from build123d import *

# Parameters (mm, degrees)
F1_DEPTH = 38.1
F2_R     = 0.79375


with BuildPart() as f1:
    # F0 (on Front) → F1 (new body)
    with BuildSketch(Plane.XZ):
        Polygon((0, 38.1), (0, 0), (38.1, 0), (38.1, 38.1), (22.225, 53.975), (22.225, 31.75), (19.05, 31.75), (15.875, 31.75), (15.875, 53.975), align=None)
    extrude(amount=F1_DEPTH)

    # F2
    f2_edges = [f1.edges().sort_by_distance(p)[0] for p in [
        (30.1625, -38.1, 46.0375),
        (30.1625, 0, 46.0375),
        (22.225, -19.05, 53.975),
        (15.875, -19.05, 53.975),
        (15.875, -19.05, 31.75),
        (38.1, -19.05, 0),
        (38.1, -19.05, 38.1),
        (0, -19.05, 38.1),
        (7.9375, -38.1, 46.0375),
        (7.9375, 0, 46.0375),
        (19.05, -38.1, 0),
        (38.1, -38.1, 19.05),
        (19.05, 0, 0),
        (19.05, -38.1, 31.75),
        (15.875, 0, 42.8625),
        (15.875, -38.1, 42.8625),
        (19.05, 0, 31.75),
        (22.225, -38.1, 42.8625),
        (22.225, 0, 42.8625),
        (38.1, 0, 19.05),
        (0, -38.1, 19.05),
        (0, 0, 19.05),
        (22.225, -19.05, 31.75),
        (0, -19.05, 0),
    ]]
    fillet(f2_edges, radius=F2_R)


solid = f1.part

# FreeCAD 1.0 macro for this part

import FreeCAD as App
import Part
import Sketcher
from FreeCAD import Vector
Q = App.Units.Quantity

doc = App.newDocument("Part")
body = doc.addObject("PartDesign::Body", "Body")

# Sketch on XZ plane
sketch1 = body.newObject("Sketcher::SketchObject", "Sketch")
sketch1.AttachmentSupport = (doc.getObject("XZ_Plane"), [""])
sketch1.MapMode = "FlatFace"
sketch1.addGeometry(Part.LineSegment(Vector(0, 38, 0), Vector(0, 0, 0)), False)
sketch1.addGeometry(Part.LineSegment(Vector(0, 0, 0), Vector(38, 0, 0)), False)
sketch1.addGeometry(Part.LineSegment(Vector(38, 0, 0), Vector(38, 38, 0)), False)
sketch1.addGeometry(Part.LineSegment(Vector(38, 38, 0), Vector(22, 54, 0)), False)
sketch1.addGeometry(Part.LineSegment(Vector(22, 54, 0), Vector(22, 32, 0)), False)
sketch1.addGeometry(Part.LineSegment(Vector(22, 32, 0), Vector(16, 32, 0)), False)
sketch1.addGeometry(Part.LineSegment(Vector(16, 32, 0), Vector(16, 54, 0)), False)
sketch1.addGeometry(Part.LineSegment(Vector(16, 54, 0), Vector(0, 38, 0)), False)
sketch1.addConstraint(Sketcher.Constraint("Coincident", 0, 2, 1, 1))
sketch1.addConstraint(Sketcher.Constraint("Coincident", 1, 2, 2, 1))
sketch1.addConstraint(Sketcher.Constraint("Coincident", 2, 2, 3, 1))
sketch1.addConstraint(Sketcher.Constraint("Coincident", 3, 2, 4, 1))
sketch1.addConstraint(Sketcher.Constraint("Coincident", 4, 2, 5, 1))
sketch1.addConstraint(Sketcher.Constraint("Coincident", 5, 2, 6, 1))
sketch1.addConstraint(Sketcher.Constraint("Coincident", 6, 2, 7, 1))
sketch1.addConstraint(Sketcher.Constraint("Coincident", 7, 2, 0, 1))
sketch1.addConstraint(Sketcher.Constraint("Vertical", 0))
sketch1.addConstraint(Sketcher.Constraint("Horizontal", 1))
sketch1.addConstraint(Sketcher.Constraint("Vertical", 2))
sketch1.addConstraint(Sketcher.Constraint("Vertical", 4))
sketch1.addConstraint(Sketcher.Constraint("Horizontal", 5))
sketch1.addConstraint(Sketcher.Constraint("Vertical", 6))
sketch1.addConstraint(Sketcher.Constraint("Coincident", 0, 2, -1, 1))
sketch1.addConstraint(Sketcher.Constraint("Perpendicular", 3, 7))
sketch1.addConstraint(Sketcher.Constraint("Horizontal", 3, 2, 6, 2))
sketch1.addConstraint(Sketcher.Constraint("Horizontal", 2, 2, 7, 2))
sketch1.addConstraint(Sketcher.Constraint("Equal", 1, 0))
sketch1.addConstraint(Sketcher.Constraint("Equal", 3, 7))
sketch1.addConstraint(Sketcher.Constraint("DistanceX", 1, 1, 1, 2, Q("1.5 in")))
sketch1.addConstraint(Sketcher.Constraint("DistanceX", 5, 2, 5, 1, Q("0.25 in")))
sketch1.addConstraint(Sketcher.Constraint("DistanceY", 4, 2, 4, 1, Q("0.875 in")))
pad1 = body.newObject("PartDesign::Pad", "Pad")
pad1.Profile = sketch1
pad1.Length = Q("1.5 in")
doc.recompute()

fillet = body.newObject("PartDesign::Fillet", "Fillet")
fillet.Base = (pad1, ["Edge1"])
fillet.UseAllEdges = True
fillet.Radius = Q("0.03125 in")

doc.recompute()
